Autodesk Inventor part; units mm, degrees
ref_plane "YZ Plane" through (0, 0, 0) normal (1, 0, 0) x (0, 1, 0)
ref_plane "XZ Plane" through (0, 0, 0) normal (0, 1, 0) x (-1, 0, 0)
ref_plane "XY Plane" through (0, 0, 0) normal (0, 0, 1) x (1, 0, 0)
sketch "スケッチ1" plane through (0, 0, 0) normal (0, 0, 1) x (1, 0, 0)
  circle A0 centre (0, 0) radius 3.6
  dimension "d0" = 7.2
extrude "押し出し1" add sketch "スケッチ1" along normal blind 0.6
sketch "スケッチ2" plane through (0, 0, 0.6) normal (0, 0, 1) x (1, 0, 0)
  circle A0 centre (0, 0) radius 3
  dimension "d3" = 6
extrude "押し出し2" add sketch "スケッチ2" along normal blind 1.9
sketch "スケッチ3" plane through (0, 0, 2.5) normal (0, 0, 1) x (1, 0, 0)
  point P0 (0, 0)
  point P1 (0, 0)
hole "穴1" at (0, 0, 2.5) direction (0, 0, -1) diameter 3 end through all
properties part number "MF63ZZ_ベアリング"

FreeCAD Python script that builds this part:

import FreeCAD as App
import Part
import Sketcher
Q = App.Units.Quantity

doc = App.newDocument("Part")
body = doc.addObject("PartDesign::Body", "Body")

# Sketch on XY plane
sketch1 = body.newObject("Sketcher::SketchObject", "Sketch")
sketch1.AttachmentSupport = (doc.getObject("XY_Plane"), [""])
sketch1.MapMode = "FlatFace"
sketch1.addGeometry(Part.Circle(App.Vector(0, 0, 0), App.Vector(0, 0, 1), 3.6), False)
sketch1.addConstraint(Sketcher.Constraint("Coincident", 0, 3, -1, 1))
sketch1.addConstraint(Sketcher.Constraint("Diameter", 0, Q("7.2 mm")))
pad1 = body.newObject("PartDesign::Pad", "Pad")
pad1.Profile = sketch1
pad1.Length = 0.6

# Sketch on XY plane
sketch2 = body.newObject("Sketcher::SketchObject", "Sketch001")
sketch2.AttachmentSupport = (doc.getObject("XY_Plane"), [""])
sketch2.MapMode = "FlatFace"
sketch2.AttachmentOffset = App.Placement(App.Vector(0, 0, 0.6), App.Rotation())
sketch2.addGeometry(Part.Circle(App.Vector(0, 0, 0), App.Vector(0, 0, 1), 3), False)
sketch2.addConstraint(Sketcher.Constraint("Coincident", 0, 3, -1, 1))
sketch2.addConstraint(Sketcher.Constraint("Diameter", 0, Q("6 mm")))
pad2 = body.newObject("PartDesign::Pad", "Pad001")
pad2.Profile = sketch2
pad2.Length = 1.9

# Sketch on XY plane
sketch3 = body.newObject("Sketcher::SketchObject", "Sketch002")
sketch3.AttachmentSupport = (doc.getObject("XY_Plane"), [""])
sketch3.MapMode = "FlatFace"
sketch3.AttachmentOffset = App.Placement(App.Vector(0, 0, 2.5), App.Rotation())
sketch3.addGeometry(Part.Circle(App.Vector(0, 0, 0), App.Vector(0, 0, 1), 1.5), False)
sketch3.addConstraint(Sketcher.Constraint("Coincident", 0, 3, -1, 1))
sketch3.addConstraint(Sketcher.Constraint("Diameter", 0, Q("3 mm")))
doc.recompute()
hole = body.newObject("PartDesign::Hole", "Hole")
hole.Profile = sketch3
hole.ThreadType = "None"
hole.Diameter = 3
hole.DepthType = "ThroughAll"

doc.recompute()
